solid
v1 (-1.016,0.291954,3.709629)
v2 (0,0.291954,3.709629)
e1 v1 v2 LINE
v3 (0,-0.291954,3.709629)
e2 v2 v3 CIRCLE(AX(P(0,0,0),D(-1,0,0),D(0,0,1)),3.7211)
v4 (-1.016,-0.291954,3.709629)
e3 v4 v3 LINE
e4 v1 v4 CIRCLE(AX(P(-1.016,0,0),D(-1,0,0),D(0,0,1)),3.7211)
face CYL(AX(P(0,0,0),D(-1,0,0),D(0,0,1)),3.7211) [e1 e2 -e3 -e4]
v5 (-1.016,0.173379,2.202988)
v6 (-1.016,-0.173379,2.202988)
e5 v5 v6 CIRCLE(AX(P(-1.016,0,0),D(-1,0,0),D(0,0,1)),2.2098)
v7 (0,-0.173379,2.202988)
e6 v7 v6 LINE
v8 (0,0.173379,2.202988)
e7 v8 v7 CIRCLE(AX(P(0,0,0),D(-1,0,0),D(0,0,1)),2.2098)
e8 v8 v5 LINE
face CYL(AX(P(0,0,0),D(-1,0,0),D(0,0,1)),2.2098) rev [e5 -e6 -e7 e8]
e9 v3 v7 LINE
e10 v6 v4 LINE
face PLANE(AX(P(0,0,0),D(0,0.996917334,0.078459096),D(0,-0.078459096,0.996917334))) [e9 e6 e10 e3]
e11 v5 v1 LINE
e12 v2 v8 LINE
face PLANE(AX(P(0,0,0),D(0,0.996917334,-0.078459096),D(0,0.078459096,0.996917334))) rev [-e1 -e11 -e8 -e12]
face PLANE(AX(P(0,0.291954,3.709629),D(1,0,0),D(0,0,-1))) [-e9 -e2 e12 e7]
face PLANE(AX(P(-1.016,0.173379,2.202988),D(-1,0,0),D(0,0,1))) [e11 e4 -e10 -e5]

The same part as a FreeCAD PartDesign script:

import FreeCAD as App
import Part
import Sketcher
Q = App.Units.Quantity

doc = App.newDocument("Part")
body = doc.addObject("PartDesign::Body", "Body")

# Sketch on an angled plane
sketch1 = body.newObject("Sketcher::SketchObject", "Sketch")
sketch1.Placement = App.Placement(App.Vector(0, 0, 0), App.Rotation(App.Vector(-1, 0, 0), App.Vector(0, -0.078459096, 0.996917334), App.Vector(0, 0.996917334, 0.078459096), "ZXY"))
sketch1.addGeometry([
    Part.LineSegment(App.Vector(0, 3.7, 0), App.Vector(0, 2.2, 0)),
    Part.LineSegment(App.Vector(0, 2.2, 0), App.Vector(1, 2.2, 0)),
    Part.LineSegment(App.Vector(1, 2.2, 0), App.Vector(1, 3.7, 0)),
    Part.LineSegment(App.Vector(1, 3.7, 0), App.Vector(0, 3.7, 0)),
], False)
sketch1.addConstraint([
    Sketcher.Constraint("Coincident", 0, 2, 1, 1),
    Sketcher.Constraint("Coincident", 1, 2, 2, 1),
    Sketcher.Constraint("Coincident", 2, 2, 3, 1),
    Sketcher.Constraint("Coincident", 3, 2, 0, 1),
    Sketcher.Constraint("Vertical", 0),
    Sketcher.Constraint("Horizontal", 1),
    Sketcher.Constraint("Vertical", 2),
    Sketcher.Constraint("Horizontal", 3),
    Sketcher.Constraint("PointOnObject", 0, 2, -2),
    Sketcher.Constraint("DistanceX", 1, 1, 1, 2, Q("0.04 in")),
    Sketcher.Constraint("DistanceY", 0, 2, 0, 1, Q("0.0595 in")),
    Sketcher.Constraint("DistanceY", -1, 1, 0, 2, Q("0.087 in")),
])
revolution = body.newObject("PartDesign::Revolution", "Revolution")
revolution.Profile = sketch1
revolution.ReferenceAxis = (sketch1, ["H_Axis"])
revolution.Angle = 351
revolution.Reversed = True

doc.recompute()
